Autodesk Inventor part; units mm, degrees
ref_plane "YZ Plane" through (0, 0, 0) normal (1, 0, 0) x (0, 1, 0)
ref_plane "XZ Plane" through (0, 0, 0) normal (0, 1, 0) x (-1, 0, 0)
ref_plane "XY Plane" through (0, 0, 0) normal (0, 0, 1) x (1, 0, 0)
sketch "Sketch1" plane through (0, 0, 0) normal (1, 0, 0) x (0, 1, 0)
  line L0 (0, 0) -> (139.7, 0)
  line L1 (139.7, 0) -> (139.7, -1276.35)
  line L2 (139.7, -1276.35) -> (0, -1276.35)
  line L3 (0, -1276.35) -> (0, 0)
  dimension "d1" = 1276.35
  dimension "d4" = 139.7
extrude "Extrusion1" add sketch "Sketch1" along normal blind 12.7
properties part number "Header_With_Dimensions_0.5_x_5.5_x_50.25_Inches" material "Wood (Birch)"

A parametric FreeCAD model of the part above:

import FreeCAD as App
import Part
import Sketcher

V = App.Vector
Q = App.Units.Quantity


def add_polygon(sketch, points):
    """Adds a closed chain of lines whose ends are joined by coincident constraints."""
    first, n = sketch.GeometryCount, len(points)
    for a, b in zip(points, points[1:] + points[:1]):
        sketch.addGeometry(Part.LineSegment(App.Vector(*a, 0), App.Vector(*b, 0)), False)
    for i in range(n):
        sketch.addConstraint(Sketcher.Constraint("Coincident", first + i, 2, first + (i + 1) % n, 1))

doc = App.newDocument("Part")
body = doc.addObject("PartDesign::Body", "Body")

# Sketch on YZ plane
sketch1 = body.newObject("Sketcher::SketchObject", "Sketch")
sketch1.AttachmentSupport = (doc.getObject("YZ_Plane"), [""])
sketch1.MapMode = "FlatFace"
add_polygon(sketch1, [(140, 0), (0, 0), (0, -1276), (140, -1276)])  # lines 0-3
sketch1.addConstraint(Sketcher.Constraint("Horizontal", 0))
sketch1.addConstraint(Sketcher.Constraint("Vertical", 1))
sketch1.addConstraint(Sketcher.Constraint("Horizontal", 2))
sketch1.addConstraint(Sketcher.Constraint("Vertical", 3))
sketch1.addConstraint(Sketcher.Constraint("Coincident", 0, 2, -1, 1))
sketch1.addConstraint(Sketcher.Constraint("DistanceX", 0, 2, 0, 1, Q("5.5 in")))
sketch1.addConstraint(Sketcher.Constraint("DistanceY", 1, 2, 1, 1, Q("50.25 in")))
pad1 = body.newObject("PartDesign::Pad", "Pad")
pad1.Profile = sketch1
pad1.Length = Q("0.5 in")

doc.recompute()
